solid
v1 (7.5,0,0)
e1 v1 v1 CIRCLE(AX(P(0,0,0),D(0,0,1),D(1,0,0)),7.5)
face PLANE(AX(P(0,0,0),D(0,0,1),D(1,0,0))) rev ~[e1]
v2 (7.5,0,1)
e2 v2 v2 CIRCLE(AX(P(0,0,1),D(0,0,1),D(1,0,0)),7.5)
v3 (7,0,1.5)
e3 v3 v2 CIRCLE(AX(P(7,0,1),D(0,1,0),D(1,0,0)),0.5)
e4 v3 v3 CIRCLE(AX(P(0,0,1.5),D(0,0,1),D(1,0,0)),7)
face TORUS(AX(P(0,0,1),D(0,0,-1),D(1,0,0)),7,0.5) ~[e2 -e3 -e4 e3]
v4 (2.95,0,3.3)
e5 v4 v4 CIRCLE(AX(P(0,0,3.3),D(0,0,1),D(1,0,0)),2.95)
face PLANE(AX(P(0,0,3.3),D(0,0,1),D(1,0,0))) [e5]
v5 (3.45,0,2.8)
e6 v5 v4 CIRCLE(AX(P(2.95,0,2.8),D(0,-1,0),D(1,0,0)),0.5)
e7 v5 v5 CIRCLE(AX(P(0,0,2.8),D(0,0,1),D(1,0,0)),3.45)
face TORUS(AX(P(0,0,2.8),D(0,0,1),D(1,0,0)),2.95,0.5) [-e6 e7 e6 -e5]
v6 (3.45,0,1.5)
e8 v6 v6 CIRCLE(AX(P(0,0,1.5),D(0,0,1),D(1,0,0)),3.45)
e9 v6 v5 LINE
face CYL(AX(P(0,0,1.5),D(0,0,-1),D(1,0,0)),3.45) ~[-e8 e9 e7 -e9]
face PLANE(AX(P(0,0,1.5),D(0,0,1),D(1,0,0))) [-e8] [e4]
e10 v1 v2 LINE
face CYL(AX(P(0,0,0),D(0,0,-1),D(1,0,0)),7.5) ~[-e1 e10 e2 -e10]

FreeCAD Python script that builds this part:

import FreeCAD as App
import Part
import Sketcher
Q = App.Units.Quantity


def edges_at(feature, points):
    """Names of the edges that pass closest to the given points."""
    edges = feature.Shape.Edges
    near = lambda p: min(range(len(edges)), key=lambda i: edges[i].distToShape(Part.Vertex(*p))[0])
    return sorted({f"Edge{near(p) + 1}" for p in points})

doc = App.newDocument("Part")
body = doc.addObject("PartDesign::Body", "Body")

sketch1 = body.newObject("Sketcher::SketchObject", "Sketch")
sketch1.AttachmentSupport = (doc.getObject("XY_Plane"), [""])
sketch1.MapMode = "FlatFace"
sketch1.addGeometry(Part.Circle(App.Vector(0, 0, 0), App.Vector(0, 0, 1), 7.5), False)
sketch1.addConstraint([
    Sketcher.Constraint("Coincident", 0, 3, -1, 1),
    Sketcher.Constraint("Diameter", 0, Q("15 mm")),
])
pad1 = body.newObject("PartDesign::Pad", "Pad")
pad1.Profile = sketch1
pad1.Length = 1.5

sketch2 = body.newObject("Sketcher::SketchObject", "Sketch001")
sketch2.AttachmentSupport = (doc.getObject("XY_Plane"), [""])
sketch2.MapMode = "FlatFace"
sketch2.AttachmentOffset = App.Placement(App.Vector(0, 0, 1.5), App.Rotation())
sketch2.addGeometry(Part.Circle(App.Vector(0, 0, 0), App.Vector(0, 0, 1), 3.45), False)
sketch2.addConstraint([
    Sketcher.Constraint("Coincident", 0, 3, -1, 1),
    Sketcher.Constraint("Diameter", 0, Q("6.9 mm")),
])
pad2 = body.newObject("PartDesign::Pad", "Pad001")
pad2.Profile = sketch2
pad2.Length = 1.8
doc.recompute()

fillet = body.newObject("PartDesign::Fillet", "Fillet")
fillet.Base = (pad2, edges_at(pad2, [(-3.45, 0, 3.3)]))
fillet.Radius = 0.5
doc.recompute()

fillet2 = body.newObject("PartDesign::Fillet", "Fillet001")
fillet2.Base = (fillet, edges_at(fillet, [(-7.5, 0, 1.5)]))
fillet2.Radius = 0.5

doc.recompute()
